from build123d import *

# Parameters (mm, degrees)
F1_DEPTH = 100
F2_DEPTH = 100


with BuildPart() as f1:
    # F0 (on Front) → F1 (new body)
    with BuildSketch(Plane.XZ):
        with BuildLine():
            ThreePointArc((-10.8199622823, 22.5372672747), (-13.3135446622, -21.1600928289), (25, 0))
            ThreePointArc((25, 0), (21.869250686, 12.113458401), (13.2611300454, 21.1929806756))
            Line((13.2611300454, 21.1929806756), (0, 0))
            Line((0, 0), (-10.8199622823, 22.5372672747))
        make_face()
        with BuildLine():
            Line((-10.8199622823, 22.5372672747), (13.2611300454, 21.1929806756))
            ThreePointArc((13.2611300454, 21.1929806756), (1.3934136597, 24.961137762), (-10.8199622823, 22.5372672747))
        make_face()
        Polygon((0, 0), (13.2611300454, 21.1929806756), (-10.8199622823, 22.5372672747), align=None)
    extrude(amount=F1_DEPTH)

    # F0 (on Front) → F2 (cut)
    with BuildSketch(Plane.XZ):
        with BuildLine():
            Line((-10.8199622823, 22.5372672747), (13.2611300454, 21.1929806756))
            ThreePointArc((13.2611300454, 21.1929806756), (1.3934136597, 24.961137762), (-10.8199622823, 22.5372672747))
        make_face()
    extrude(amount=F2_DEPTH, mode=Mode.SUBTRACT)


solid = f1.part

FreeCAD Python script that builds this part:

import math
import FreeCAD as App
import Part
import Sketcher

V = App.Vector
Q = App.Units.Quantity

doc = App.newDocument("Part")
body = doc.addObject("PartDesign::Body", "Body")

# Sketch on XZ plane
sketch1 = body.newObject("Sketcher::SketchObject", "Sketch")
sketch1.AttachmentSupport = (doc.getObject("XZ_Plane"), [""])
sketch1.MapMode = "FlatFace"
sketch1.addGeometry(Part.ArcOfCircle(Part.Circle(V(0, 0, 0), V(0, 0, 1), 25), math.radians(0), math.radians(58)), False)
sketch1.addGeometry(Part.ArcOfCircle(Part.Circle(V(0, 0, 0), V(0, 0, 1), 25), math.radians(58), math.radians(360)), False)
sketch1.addConstraint(Sketcher.Constraint("Tangent", 0, 1, 1, 2))
sketch1.addConstraint(Sketcher.Constraint("Coincident", 1, 1, 0, 2))
sketch1.addConstraint(Sketcher.Constraint("Coincident", 0, 3, -1, 1))
sketch1.addConstraint(Sketcher.Constraint("PointOnObject", 0, 1, -1))
sketch1.addConstraint(Sketcher.Constraint("Radius", 0, Q("25 mm")))
sketch1.addConstraint(Sketcher.Constraint("DistanceX", -1, 1, 1, 1, Q("13.26113 mm")))
pad1 = body.newObject("PartDesign::Pad", "Pad")
pad1.Profile = sketch1
pad1.Length = 100

# Sketch on XZ plane
sketch2 = body.newObject("Sketcher::SketchObject", "Sketch001")
sketch2.AttachmentSupport = (doc.getObject("XZ_Plane"), [""])
sketch2.MapMode = "FlatFace"
sketch2.addGeometry(Part.LineSegment(V(-11, 23, 0), V(13, 21, 0)), False)
sketch2.addGeometry(Part.ArcOfCircle(Part.Circle(V(0, 0, 0), V(0, 0, 1), 25), math.radians(58), math.radians(116)), False)
sketch2.addConstraint(Sketcher.Constraint("Coincident", 0, 1, 1, 2))
sketch2.addConstraint(Sketcher.Constraint("Coincident", 1, 1, 0, 2))
sketch2.addConstraint(Sketcher.Constraint("Coincident", 1, 3, -1, 1))
sketch2.addConstraint(Sketcher.Constraint("Radius", 1, Q("25 mm")))
sketch2.addConstraint(Sketcher.Constraint("DistanceX", -1, 1, 1, 1, Q("13.26113 mm")))
sketch2.addConstraint(Sketcher.Constraint("Distance", 0, Q("24.118584 mm")))
pocket1 = body.newObject("PartDesign::Pocket", "Pocket")
pocket1.Profile = sketch2
pocket1.Length = 100
pocket1.Reversed = True

doc.recompute()
